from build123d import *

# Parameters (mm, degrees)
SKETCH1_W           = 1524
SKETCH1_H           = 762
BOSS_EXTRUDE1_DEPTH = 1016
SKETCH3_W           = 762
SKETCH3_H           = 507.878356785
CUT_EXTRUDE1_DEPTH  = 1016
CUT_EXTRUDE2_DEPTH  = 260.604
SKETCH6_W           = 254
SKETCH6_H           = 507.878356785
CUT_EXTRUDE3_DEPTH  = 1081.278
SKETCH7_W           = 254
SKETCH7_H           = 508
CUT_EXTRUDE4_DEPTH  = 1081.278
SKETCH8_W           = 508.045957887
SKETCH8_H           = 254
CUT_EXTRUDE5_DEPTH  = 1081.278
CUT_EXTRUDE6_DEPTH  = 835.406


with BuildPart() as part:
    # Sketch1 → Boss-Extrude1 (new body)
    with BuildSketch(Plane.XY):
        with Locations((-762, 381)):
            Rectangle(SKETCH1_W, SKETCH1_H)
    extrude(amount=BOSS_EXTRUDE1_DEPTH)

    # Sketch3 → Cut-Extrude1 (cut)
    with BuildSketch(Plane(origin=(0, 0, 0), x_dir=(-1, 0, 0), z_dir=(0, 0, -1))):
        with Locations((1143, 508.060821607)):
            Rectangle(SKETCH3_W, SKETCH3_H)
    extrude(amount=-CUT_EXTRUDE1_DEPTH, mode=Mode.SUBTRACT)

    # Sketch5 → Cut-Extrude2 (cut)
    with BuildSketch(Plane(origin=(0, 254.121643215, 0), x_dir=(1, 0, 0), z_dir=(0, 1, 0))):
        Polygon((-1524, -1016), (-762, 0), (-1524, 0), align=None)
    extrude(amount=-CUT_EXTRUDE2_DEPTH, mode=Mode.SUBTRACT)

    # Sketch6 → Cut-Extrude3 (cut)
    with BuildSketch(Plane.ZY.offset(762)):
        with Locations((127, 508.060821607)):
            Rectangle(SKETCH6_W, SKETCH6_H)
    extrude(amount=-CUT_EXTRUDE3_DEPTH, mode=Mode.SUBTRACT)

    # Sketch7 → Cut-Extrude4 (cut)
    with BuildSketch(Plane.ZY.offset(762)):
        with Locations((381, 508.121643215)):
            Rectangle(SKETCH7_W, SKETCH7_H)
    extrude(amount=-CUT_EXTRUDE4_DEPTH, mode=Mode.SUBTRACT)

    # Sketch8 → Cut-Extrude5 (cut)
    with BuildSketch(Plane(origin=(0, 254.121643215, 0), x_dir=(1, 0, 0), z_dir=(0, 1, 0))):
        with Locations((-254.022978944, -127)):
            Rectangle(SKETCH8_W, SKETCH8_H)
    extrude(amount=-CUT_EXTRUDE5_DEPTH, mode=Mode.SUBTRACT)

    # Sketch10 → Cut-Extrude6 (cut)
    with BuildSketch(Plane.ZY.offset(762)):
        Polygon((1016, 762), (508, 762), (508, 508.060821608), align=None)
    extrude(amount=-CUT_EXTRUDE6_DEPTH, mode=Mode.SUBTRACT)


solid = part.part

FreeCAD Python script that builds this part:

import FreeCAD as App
import Part
import Sketcher
Q = App.Units.Quantity


def add_polygon(sketch, points):
    """Adds a closed chain of lines whose ends are joined by coincident constraints."""
    first, n = sketch.GeometryCount, len(points)
    for a, b in zip(points, points[1:] + points[:1]):
        sketch.addGeometry(Part.LineSegment(App.Vector(*a, 0), App.Vector(*b, 0)), False)
    for i in range(n):
        sketch.addConstraint(Sketcher.Constraint("Coincident", first + i, 2, first + (i + 1) % n, 1))

doc = App.newDocument("Part")
body = doc.addObject("PartDesign::Body", "Body")

sketch1 = doc.addObject("Sketcher::SketchObject", "Sketch")
body.addObject(sketch1)
sketch1.AttachmentSupport = (doc.XY_Plane, [""])
sketch1.MapMode = "FlatFace"
add_polygon(sketch1, [(-1524, 762), (-1524, 0), (0, 0), (0, 762)])
sketch1.addConstraint(Sketcher.Constraint("Vertical", 0))
sketch1.addConstraint(Sketcher.Constraint("Horizontal", 1))
sketch1.addConstraint(Sketcher.Constraint("Vertical", 2))
sketch1.addConstraint(Sketcher.Constraint("Horizontal", 3))
sketch1.addConstraint(Sketcher.Constraint("Coincident", 1, 2, -1, 1))
sketch1.addConstraint(Sketcher.Constraint("DistanceX", 1, 1, 1, 2, Q("60 in")))
sketch1.addConstraint(Sketcher.Constraint("DistanceY", 0, 2, 0, 1, Q("30 in")))
pad1 = doc.addObject("PartDesign::Pad", "Pad")
body.addObject(pad1)
pad1.Profile = sketch1
pad1.Length = Q("40 in")

sketch2 = doc.addObject("Sketcher::SketchObject", "Sketch001")
body.addObject(sketch2)
sketch2.AttachmentSupport = (doc.XY_Plane, [""])
sketch2.MapMode = "FlatFace"
add_polygon(sketch2, [(-762, 762), (-762, 254.121643), (-1524, 254.121643), (-1524, 762)])
sketch2.addConstraint(Sketcher.Constraint("Vertical", 0))
sketch2.addConstraint(Sketcher.Constraint("Horizontal", 1))
sketch2.addConstraint(Sketcher.Constraint("Vertical", 2))
sketch2.addConstraint(Sketcher.Constraint("Horizontal", 3))
sketch2.addConstraint(Sketcher.Constraint("DistanceX", 1, 2, 1, 1, Q("30 in")))
sketch2.addConstraint(Sketcher.Constraint("DistanceX", 0, 2, -1, 1, Q("30 in")))
sketch2.addConstraint(Sketcher.Constraint("DistanceY", -1, 1, 2, 2, Q("30 in")))
sketch2.addConstraint(Sketcher.Constraint("DistanceY", 0, 2, 0, 1, 507.878357))
pocket1 = doc.addObject("PartDesign::Pocket", "Pocket")
body.addObject(pocket1)
pocket1.Profile = sketch2
pocket1.Length = Q("40 in")
pocket1.Reversed = True

sketch3 = doc.addObject("Sketcher::SketchObject", "Sketch002")
body.addObject(sketch3)
sketch3.AttachmentSupport = (doc.XZ_Plane, [""])
sketch3.MapMode = "FlatFace"
sketch3.AttachmentOffset = App.Placement(App.Vector(0, 0, -254.121643), App.Rotation())
add_polygon(sketch3, [(-1524, 1016), (-762, 0), (-1524, 0)])
sketch3.addConstraint(Sketcher.Constraint("Horizontal", 1))
sketch3.addConstraint(Sketcher.Constraint("Vertical", 2))
sketch3.addConstraint(Sketcher.Constraint("PointOnObject", 0, 2, -1))
sketch3.addConstraint(Sketcher.Constraint("DistanceX", 1, 2, 1, 1, Q("30 in")))
sketch3.addConstraint(Sketcher.Constraint("DistanceY", 2, 1, 2, 2, Q("40 in")))
sketch3.addConstraint(Sketcher.Constraint("DistanceX", 0, 2, -1, 1, Q("30 in")))
pocket2 = doc.addObject("PartDesign::Pocket", "Pocket001")
body.addObject(pocket2)
pocket2.Profile = sketch3
pocket2.Length = Q("10.26 in")
pocket2.Reversed = True

sketch4 = doc.addObject("Sketcher::SketchObject", "Sketch003")
body.addObject(sketch4)
sketch4.AttachmentSupport = (doc.YZ_Plane, [""])
sketch4.MapMode = "FlatFace"
sketch4.AttachmentOffset = App.Placement(App.Vector(0, 0, -30 * 25.4), App.Rotation())
add_polygon(sketch4, [(762, 0), (254.121643, 0), (254.121643, 254), (762, 254)])
sketch4.addConstraint(Sketcher.Constraint("Horizontal", 0))
sketch4.addConstraint(Sketcher.Constraint("Vertical", 1))
sketch4.addConstraint(Sketcher.Constraint("Horizontal", 2))
sketch4.addConstraint(Sketcher.Constraint("Vertical", 3))
sketch4.addConstraint(Sketcher.Constraint("PointOnObject", 0, 2, -1))
sketch4.addConstraint(Sketcher.Constraint("DistanceY", 1, 1, 1, 2, Q("10 in")))
sketch4.addConstraint(Sketcher.Constraint("DistanceX", -1, 1, 2, 2, Q("30 in")))
sketch4.addConstraint(Sketcher.Constraint("DistanceX", 0, 2, 0, 1, 507.878357))
pocket3 = doc.addObject("PartDesign::Pocket", "Pocket002")
body.addObject(pocket3)
pocket3.Profile = sketch4
pocket3.Length = Q("42.57 in")
pocket3.Reversed = True

sketch5 = doc.addObject("Sketcher::SketchObject", "Sketch004")
body.addObject(sketch5)
sketch5.AttachmentSupport = (doc.YZ_Plane, [""])
sketch5.MapMode = "FlatFace"
sketch5.AttachmentOffset = App.Placement(App.Vector(0, 0, -30 * 25.4), App.Rotation())
add_polygon(sketch5, [(762.121643, 254), (254.121643, 254), (254.121643, 508), (762.121643, 508)])
sketch5.addConstraint(Sketcher.Constraint("Horizontal", 0))
sketch5.addConstraint(Sketcher.Constraint("Vertical", 1))
sketch5.addConstraint(Sketcher.Constraint("Horizontal", 2))
sketch5.addConstraint(Sketcher.Constraint("Vertical", 3))
sketch5.addConstraint(Sketcher.Constraint("DistanceX", 0, 2, 0, 1, Q("20 in")))
sketch5.addConstraint(Sketcher.Constraint("DistanceY", 1, 1, 1, 2, Q("10 in")))
sketch5.addConstraint(Sketcher.Constraint("DistanceY", -1, 1, 0, 2, Q("10 in")))
sketch5.addConstraint(Sketcher.Constraint("DistanceX", -1, 1, 0, 2, 254.121643))
pocket4 = doc.addObject("PartDesign::Pocket", "Pocket003")
body.addObject(pocket4)
pocket4.Profile = sketch5
pocket4.Length = Q("42.57 in")
pocket4.Reversed = True

sketch6 = doc.addObject("Sketcher::SketchObject", "Sketch005")
body.addObject(sketch6)
sketch6.AttachmentSupport = (doc.XZ_Plane, [""])
sketch6.MapMode = "FlatFace"
sketch6.AttachmentOffset = App.Placement(App.Vector(0, 0, -254.121643), App.Rotation())
add_polygon(sketch6, [(-508.045958, 0), (-508.045958, 254), (0, 254), (0, 0)])
sketch6.addConstraint(Sketcher.Constraint("Vertical", 0))
sketch6.addConstraint(Sketcher.Constraint("Horizontal", 1))
sketch6.addConstraint(Sketcher.Constraint("Vertical", 2))
sketch6.addConstraint(Sketcher.Constraint("Horizontal", 3))
sketch6.addConstraint(Sketcher.Constraint("Coincident", 2, 2, -1, 1))
sketch6.addConstraint(Sketcher.Constraint("DistanceY", 0, 1, 0, 2, Q("10 in")))
sketch6.addConstraint(Sketcher.Constraint("DistanceX", 1, 1, 1, 2, 508.045958))
pocket5 = doc.addObject("PartDesign::Pocket", "Pocket004")
body.addObject(pocket5)
pocket5.Profile = sketch6
pocket5.Length = Q("42.57 in")
pocket5.Reversed = True

sketch7 = doc.addObject("Sketcher::SketchObject", "Sketch006")
body.addObject(sketch7)
sketch7.AttachmentSupport = (doc.YZ_Plane, [""])
sketch7.MapMode = "FlatFace"
sketch7.AttachmentOffset = App.Placement(App.Vector(0, 0, -30 * 25.4), App.Rotation())
add_polygon(sketch7, [(762, 1016), (762, 508), (508.060822, 508)])
sketch7.addConstraint(Sketcher.Constraint("Vertical", 0))
sketch7.addConstraint(Sketcher.Constraint("Horizontal", 1))
sketch7.addConstraint(Sketcher.Constraint("DistanceY", 0, 2, 0, 1, Q("20 in")))
sketch7.addConstraint(Sketcher.Constraint("DistanceX", -1, 1, 0, 2, Q("30 in")))
sketch7.addConstraint(Sketcher.Constraint("DistanceY", -1, 1, 0, 2, Q("20 in")))
sketch7.addConstraint(Sketcher.Constraint("DistanceX", 1, 2, 1, 1, 253.939178))
pocket6 = doc.addObject("PartDesign::Pocket", "Pocket005")
body.addObject(pocket6)
pocket6.Profile = sketch7
pocket6.Length = Q("32.89 in")
pocket6.Reversed = True

doc.recompute()
